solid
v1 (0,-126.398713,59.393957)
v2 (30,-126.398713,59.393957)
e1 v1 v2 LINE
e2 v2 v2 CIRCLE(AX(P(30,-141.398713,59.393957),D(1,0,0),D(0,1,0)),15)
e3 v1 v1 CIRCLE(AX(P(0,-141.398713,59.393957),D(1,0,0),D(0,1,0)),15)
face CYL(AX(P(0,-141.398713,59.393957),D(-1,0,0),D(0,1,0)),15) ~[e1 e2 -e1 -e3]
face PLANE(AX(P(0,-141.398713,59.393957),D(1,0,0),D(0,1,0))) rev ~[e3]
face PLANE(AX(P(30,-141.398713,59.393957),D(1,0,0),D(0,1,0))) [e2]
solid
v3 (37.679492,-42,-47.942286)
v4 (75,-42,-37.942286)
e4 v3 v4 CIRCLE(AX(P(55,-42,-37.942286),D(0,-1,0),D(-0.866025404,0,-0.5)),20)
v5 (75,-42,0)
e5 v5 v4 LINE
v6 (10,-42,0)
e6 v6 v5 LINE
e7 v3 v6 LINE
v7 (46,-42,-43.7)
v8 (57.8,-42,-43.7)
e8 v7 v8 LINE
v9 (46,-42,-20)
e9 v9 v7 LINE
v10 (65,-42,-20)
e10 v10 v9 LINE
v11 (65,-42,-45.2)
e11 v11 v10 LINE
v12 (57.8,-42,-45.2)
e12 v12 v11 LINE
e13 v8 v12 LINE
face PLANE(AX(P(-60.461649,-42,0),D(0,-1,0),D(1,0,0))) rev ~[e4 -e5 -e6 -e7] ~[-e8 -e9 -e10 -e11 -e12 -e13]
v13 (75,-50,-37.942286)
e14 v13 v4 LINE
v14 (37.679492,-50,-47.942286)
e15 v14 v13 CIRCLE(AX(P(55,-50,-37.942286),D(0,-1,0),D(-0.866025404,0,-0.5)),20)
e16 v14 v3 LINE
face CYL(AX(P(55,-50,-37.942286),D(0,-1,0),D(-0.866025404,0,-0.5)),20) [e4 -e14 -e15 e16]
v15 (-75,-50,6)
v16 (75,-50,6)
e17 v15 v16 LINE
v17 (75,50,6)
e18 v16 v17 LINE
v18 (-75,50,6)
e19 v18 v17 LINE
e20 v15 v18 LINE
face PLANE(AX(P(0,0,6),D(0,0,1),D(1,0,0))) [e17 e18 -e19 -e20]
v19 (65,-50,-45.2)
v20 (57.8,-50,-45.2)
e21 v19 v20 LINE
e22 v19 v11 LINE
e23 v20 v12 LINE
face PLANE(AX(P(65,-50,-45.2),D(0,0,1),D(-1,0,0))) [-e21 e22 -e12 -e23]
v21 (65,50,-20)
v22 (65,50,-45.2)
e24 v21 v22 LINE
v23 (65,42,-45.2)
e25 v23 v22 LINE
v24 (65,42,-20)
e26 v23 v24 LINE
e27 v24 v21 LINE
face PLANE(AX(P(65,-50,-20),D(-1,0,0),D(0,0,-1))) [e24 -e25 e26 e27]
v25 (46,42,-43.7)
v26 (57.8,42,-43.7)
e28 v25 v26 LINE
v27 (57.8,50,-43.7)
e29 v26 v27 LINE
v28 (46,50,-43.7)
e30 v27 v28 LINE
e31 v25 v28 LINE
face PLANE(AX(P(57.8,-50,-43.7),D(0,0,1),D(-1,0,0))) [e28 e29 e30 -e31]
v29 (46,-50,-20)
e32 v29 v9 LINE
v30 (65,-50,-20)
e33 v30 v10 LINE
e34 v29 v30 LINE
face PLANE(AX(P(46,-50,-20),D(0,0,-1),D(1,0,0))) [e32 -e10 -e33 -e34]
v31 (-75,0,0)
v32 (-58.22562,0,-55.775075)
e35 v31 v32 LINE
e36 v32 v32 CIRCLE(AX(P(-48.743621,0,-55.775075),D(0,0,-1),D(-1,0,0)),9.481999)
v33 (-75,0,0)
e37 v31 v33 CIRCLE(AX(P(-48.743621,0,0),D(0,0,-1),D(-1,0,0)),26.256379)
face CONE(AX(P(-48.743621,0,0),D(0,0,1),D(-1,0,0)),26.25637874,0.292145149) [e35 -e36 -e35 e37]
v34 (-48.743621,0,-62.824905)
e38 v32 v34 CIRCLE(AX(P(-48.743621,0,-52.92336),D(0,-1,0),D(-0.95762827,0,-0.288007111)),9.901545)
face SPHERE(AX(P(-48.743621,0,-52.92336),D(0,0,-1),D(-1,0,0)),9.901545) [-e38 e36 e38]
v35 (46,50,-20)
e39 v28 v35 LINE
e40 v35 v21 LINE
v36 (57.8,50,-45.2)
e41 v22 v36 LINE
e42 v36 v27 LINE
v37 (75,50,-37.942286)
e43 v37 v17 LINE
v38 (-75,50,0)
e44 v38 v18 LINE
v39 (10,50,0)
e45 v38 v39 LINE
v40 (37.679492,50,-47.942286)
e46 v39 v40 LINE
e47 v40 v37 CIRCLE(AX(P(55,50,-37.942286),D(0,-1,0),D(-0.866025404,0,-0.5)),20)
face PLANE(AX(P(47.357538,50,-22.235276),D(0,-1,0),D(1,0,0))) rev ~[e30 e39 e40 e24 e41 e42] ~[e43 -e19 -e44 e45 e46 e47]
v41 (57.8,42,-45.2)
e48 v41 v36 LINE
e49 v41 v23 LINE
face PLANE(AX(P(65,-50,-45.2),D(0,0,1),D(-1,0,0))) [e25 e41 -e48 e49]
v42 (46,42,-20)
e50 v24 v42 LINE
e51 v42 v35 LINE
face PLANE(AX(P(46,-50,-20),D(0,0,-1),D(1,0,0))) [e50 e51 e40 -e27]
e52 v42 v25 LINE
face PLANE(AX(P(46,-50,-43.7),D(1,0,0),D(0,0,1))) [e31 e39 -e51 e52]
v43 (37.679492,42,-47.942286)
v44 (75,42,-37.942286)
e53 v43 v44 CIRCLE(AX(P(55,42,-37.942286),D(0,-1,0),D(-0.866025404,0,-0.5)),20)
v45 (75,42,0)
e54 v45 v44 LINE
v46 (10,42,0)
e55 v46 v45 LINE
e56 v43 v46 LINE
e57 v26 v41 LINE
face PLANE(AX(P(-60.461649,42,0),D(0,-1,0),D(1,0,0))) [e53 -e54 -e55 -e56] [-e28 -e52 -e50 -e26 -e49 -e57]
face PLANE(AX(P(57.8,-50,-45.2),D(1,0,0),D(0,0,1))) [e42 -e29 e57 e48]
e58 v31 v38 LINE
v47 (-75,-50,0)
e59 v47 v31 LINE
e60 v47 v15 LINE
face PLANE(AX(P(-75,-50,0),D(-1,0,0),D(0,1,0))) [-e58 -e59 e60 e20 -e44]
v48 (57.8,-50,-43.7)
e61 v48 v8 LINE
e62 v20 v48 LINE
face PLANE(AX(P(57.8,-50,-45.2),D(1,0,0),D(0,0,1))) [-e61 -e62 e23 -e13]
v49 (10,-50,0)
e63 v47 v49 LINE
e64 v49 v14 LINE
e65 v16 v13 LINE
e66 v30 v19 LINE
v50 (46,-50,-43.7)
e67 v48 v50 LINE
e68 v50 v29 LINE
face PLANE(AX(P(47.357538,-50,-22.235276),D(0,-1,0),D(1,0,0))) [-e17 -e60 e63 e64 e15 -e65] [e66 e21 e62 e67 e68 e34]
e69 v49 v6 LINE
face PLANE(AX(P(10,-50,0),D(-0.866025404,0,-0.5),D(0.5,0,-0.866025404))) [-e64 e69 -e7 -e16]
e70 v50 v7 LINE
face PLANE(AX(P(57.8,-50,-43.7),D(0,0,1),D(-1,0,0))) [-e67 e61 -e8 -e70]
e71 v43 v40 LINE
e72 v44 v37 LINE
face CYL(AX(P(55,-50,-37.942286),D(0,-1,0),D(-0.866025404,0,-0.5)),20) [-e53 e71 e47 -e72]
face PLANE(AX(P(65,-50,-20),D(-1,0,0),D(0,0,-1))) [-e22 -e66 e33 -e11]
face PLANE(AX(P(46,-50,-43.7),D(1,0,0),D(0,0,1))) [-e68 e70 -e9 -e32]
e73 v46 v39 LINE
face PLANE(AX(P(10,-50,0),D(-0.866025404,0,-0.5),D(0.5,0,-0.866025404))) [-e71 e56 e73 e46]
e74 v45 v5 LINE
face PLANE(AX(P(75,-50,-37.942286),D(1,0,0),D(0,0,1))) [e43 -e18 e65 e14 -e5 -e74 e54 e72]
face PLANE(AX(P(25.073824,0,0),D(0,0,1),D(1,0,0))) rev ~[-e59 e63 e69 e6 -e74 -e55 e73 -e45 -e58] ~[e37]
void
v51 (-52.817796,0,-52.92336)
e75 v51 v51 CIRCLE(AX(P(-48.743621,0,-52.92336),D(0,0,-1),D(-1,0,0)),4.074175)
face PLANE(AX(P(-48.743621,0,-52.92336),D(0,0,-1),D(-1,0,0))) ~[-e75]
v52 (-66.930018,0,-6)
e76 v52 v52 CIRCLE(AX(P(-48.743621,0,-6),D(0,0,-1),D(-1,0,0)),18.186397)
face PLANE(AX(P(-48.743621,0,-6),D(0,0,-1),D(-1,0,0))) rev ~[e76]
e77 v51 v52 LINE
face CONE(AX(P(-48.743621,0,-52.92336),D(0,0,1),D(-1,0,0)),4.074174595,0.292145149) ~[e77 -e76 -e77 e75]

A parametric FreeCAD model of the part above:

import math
import FreeCAD as App
import Part
import Sketcher

V = App.Vector
Q = App.Units.Quantity

doc = App.newDocument("Part")
body = doc.addObject("PartDesign::Body", "Body")

sketch1 = body.newObject("Sketcher::SketchObject", "Sketch")
sketch1.AttachmentSupport = (doc.getObject("XY_Plane"), [""])
sketch1.MapMode = "FlatFace"
sketch1.addGeometry([
    Part.LineSegment(V(-75, 50, 0), V(-75, -50, 0)),
    Part.LineSegment(V(-75, -50, 0), V(75, -50, 0)),
    Part.LineSegment(V(75, -50, 0), V(75, 50, 0)),
    Part.LineSegment(V(75, 50, 0), V(-75, 50, 0)),
], False)
sketch1.addConstraint([
    Sketcher.Constraint("Coincident", 0, 2, 1, 1),
    Sketcher.Constraint("Coincident", 1, 2, 2, 1),
    Sketcher.Constraint("Coincident", 2, 2, 3, 1),
    Sketcher.Constraint("Coincident", 3, 2, 0, 1),
    Sketcher.Constraint("Vertical", 0),
    Sketcher.Constraint("Horizontal", 1),
    Sketcher.Constraint("Vertical", 2),
    Sketcher.Constraint("Horizontal", 3),
    Sketcher.Constraint("Symmetric", 0, 2, 2, 2, -1, 1),
    Sketcher.Constraint("DistanceX", 1, 1, 1, 2, Q("150 mm")),
    Sketcher.Constraint("DistanceY", 0, 2, 0, 1, Q("100 mm")),
])
pad1 = body.newObject("PartDesign::Pad", "Pad")
pad1.Profile = sketch1
pad1.Length = 6

sketch2 = body.newObject("Sketcher::SketchObject", "Sketch001")
sketch2.AttachmentSupport = (doc.getObject("XZ_Plane"), [""])
sketch2.MapMode = "FlatFace"
sketch2.AttachmentOffset = App.Placement(V(0, 0, 50), App.Rotation())
sketch2.addGeometry([
    Part.LineSegment(V(75, 0, 0), V(10, 0, 0)),
    Part.LineSegment(V(10, 0, 0), V(37.679492, -47.942286, 0)),
    Part.ArcOfCircle(Part.Circle(V(55, -37.942286, 0), V(0, 0, 1), 20), math.radians(-150), math.radians(0)),
    Part.LineSegment(V(75, -37.942286, 0), V(75, 0, 0)),
    Part.LineSegment(V(46, -43.7, 0), V(46, -20, 0)),
    Part.LineSegment(V(46, -20, 0), V(65, -20, 0)),
    Part.LineSegment(V(65, -20, 0), V(65, -45.2, 0)),
    Part.LineSegment(V(65, -45.2, 0), V(57.8, -45.2, 0)),
    Part.LineSegment(V(57.8, -45.2, 0), V(57.8, -43.7, 0)),
    Part.LineSegment(V(57.8, -43.7, 0), V(46, -43.7, 0)),
], False)
sketch2.addConstraint([
    Sketcher.Constraint("Coincident", 0, 2, 1, 1),
    Sketcher.Constraint("Tangent", 1, 2, 2, 1),
    Sketcher.Constraint("Tangent", 2, 2, 3, 1),
    Sketcher.Constraint("Coincident", 3, 2, 0, 1),
    Sketcher.Constraint("Coincident", 4, 2, 5, 1),
    Sketcher.Constraint("Coincident", 5, 2, 6, 1),
    Sketcher.Constraint("Coincident", 6, 2, 7, 1),
    Sketcher.Constraint("Coincident", 7, 2, 8, 1),
    Sketcher.Constraint("Coincident", 8, 2, 9, 1),
    Sketcher.Constraint("Coincident", 9, 2, 4, 1),
    Sketcher.Constraint("Horizontal", 0),
    Sketcher.Constraint("Vertical", 3),
    Sketcher.Constraint("Vertical", 4),
    Sketcher.Constraint("Horizontal", 5),
    Sketcher.Constraint("Vertical", 6),
    Sketcher.Constraint("Horizontal", 7),
    Sketcher.Constraint("Vertical", 8),
    Sketcher.Constraint("Horizontal", 9),
    Sketcher.Constraint("PointOnObject", 0, 2, -1),
    Sketcher.Constraint("Radius", 2, Q("20 mm")),
    Sketcher.Constraint("DistanceX", 0, 2, 0, 1, Q("65 mm")),
    Sketcher.Constraint("DistanceX", 5, 1, 5, 2, Q("19 mm")),
    Sketcher.Constraint("Angle", 1, Q("-60 deg")),
    Sketcher.Constraint("DistanceX", 7, 2, 7, 1, Q("7.2 mm")),
    Sketcher.Constraint("DistanceY", 4, 1, 4, 2, Q("23.7 mm")),
    Sketcher.Constraint("DistanceY", 6, 2, 6, 1, Q("25.2 mm")),
    Sketcher.Constraint("DistanceX", -1, 1, 2, 3, Q("55 mm")),
    Sketcher.Constraint("DistanceX", -1, 1, 4, 2, Q("46 mm")),
    Sketcher.Constraint("DistanceY", 4, 2, -1, 1, Q("20 mm")),
])
pad2 = body.newObject("PartDesign::Pad", "Pad001")
pad2.Profile = sketch2
pad2.Length = 100
pad2.Reversed = True

sketch3 = body.newObject("Sketcher::SketchObject", "Sketch002")
sketch3.AttachmentSupport = (doc.getObject("XY_Plane"), [""])
sketch3.MapMode = "FlatFace"
sketch3.addGeometry([
    Part.LineSegment(V(-60.461649, 42, 0), V(-60.461649, -42, 0)),
    Part.LineSegment(V(-60.461649, -42, 0), V(110.609297, -42, 0)),
    Part.LineSegment(V(110.609297, -42, 0), V(110.609297, 42, 0)),
    Part.LineSegment(V(110.609297, 42, 0), V(-60.461649, 42, 0)),
], False)
sketch3.addConstraint([
    Sketcher.Constraint("Coincident", 0, 2, 1, 1),
    Sketcher.Constraint("Coincident", 1, 2, 2, 1),
    Sketcher.Constraint("Coincident", 2, 2, 3, 1),
    Sketcher.Constraint("Coincident", 3, 2, 0, 1),
    Sketcher.Constraint("Vertical", 0),
    Sketcher.Constraint("Horizontal", 1),
    Sketcher.Constraint("Vertical", 2),
    Sketcher.Constraint("Horizontal", 3),
    Sketcher.Constraint("DistanceY", 0, 2, 0, 1, Q("84 mm")),
    Sketcher.Constraint("DistanceY", 0, 2, -1, 1, Q("42 mm")),
    Sketcher.Constraint("DistanceX", 1, 1, 1, 2, Q("171.070946 mm")),
    Sketcher.Constraint("DistanceX", 0, 2, -1, 1, Q("60.461649 mm")),
])
pocket1 = body.newObject("PartDesign::Pocket", "Pocket")
pocket1.Profile = sketch3
pocket1.Length = 200

sketch4 = body.newObject("Sketcher::SketchObject", "Sketch003")
sketch4.AttachmentSupport = (doc.getObject("XZ_Plane"), [""])
sketch4.MapMode = "FlatFace"
sketch4.addGeometry([
    Part.LineSegment(V(-48.743621, 0, 0), V(-75, 0, 0)),
    Part.LineSegment(V(-75, 0, 0), V(-58.22562, -55.775075, 0)),
    Part.ArcOfCircle(Part.Circle(V(-48.743621, -52.92336, 0), V(0, 0, 1), 9.901545), math.radians(-163.261318), math.radians(-90)),
    Part.LineSegment(V(-48.743621, -62.824905, 0), V(-48.743621, -52.92336, 0)),
    Part.LineSegment(V(-48.743621, -52.92336, 0), V(-52.817796, -52.92336, 0)),
    Part.LineSegment(V(-52.817796, -52.92336, 0), V(-66.930018, -6, 0)),
    Part.LineSegment(V(-66.930018, -6, 0), V(-48.743621, -6, 0)),
    Part.LineSegment(V(-48.743621, -6, 0), V(-48.743621, 0, 0)),
], False)
sketch4.addGeometry(Part.LineSegment(V(-48.743621, 0, 0), V(-48.743621, -62.824905, 0)), True)
sketch4.addConstraint([
    Sketcher.Constraint("Coincident", 0, 2, 1, 1),
    Sketcher.Constraint("Coincident", 1, 2, 2, 1),
    Sketcher.Constraint("Coincident", 2, 2, 3, 1),
    Sketcher.Constraint("Coincident", 3, 2, 4, 1),
    Sketcher.Constraint("Coincident", 4, 2, 5, 1),
    Sketcher.Constraint("Coincident", 5, 2, 6, 1),
    Sketcher.Constraint("Coincident", 6, 2, 7, 1),
    Sketcher.Constraint("Coincident", 7, 2, 0, 1),
    Sketcher.Constraint("Horizontal", 0),
    Sketcher.Constraint("Vertical", 3),
    Sketcher.Constraint("Horizontal", 4),
    Sketcher.Constraint("Horizontal", 6),
    Sketcher.Constraint("Vertical", 7),
    Sketcher.Constraint("Vertical", 8),
    Sketcher.Constraint("Coincident", 3, 2, 2, 3),
    Sketcher.Constraint("Coincident", 8, 1, 7, 2),
    Sketcher.Constraint("Coincident", 8, 2, 2, 2),
    Sketcher.Constraint("PointOnObject", 0, 2, -1),
    Sketcher.Constraint("DistanceY", 7, 1, 7, 2, Q("6 mm")),
    Sketcher.Constraint("DistanceX", 0, 2, -1, 1, Q("75 mm")),
    Sketcher.Constraint("Radius", 2, Q("9.901545 mm")),
    Sketcher.Constraint("DistanceX", 1, 2, 2, 3, Q("9.481999 mm")),
    Sketcher.Constraint("DistanceX", 0, 2, 0, 1, Q("26.256379 mm")),
    Sketcher.Constraint("Distance", 1, Q("58.242929 mm")),
    Sketcher.Constraint("DistanceX", 4, 2, 4, 1, Q("4.074175 mm")),
    Sketcher.Constraint("DistanceX", 6, 1, 6, 2, Q("18.186397 mm")),
])
revolution = body.newObject("PartDesign::Revolution", "Revolution")
revolution.Profile = sketch4
revolution.ReferenceAxis = (sketch4, ["Axis0"])
revolution.Angle = 360
body2 = doc.addObject("PartDesign::Body", "Body001")

sketch5 = body2.newObject("Sketcher::SketchObject", "Sketch004")
sketch5.AttachmentSupport = (doc.getObject("YZ_Plane001"), [""])
sketch5.MapMode = "FlatFace"
sketch5.addGeometry(Part.Circle(V(-141.398713, 59.393957, 0), V(0, 0, 1), 15), False)
sketch5.addConstraint([
    Sketcher.Constraint("Diameter", 0, Q("30 mm")),
    Sketcher.Constraint("DistanceX", 0, 3, -1, 1, Q("141.398713 mm")),
    Sketcher.Constraint("DistanceY", -1, 1, 0, 3, Q("59.393957 mm")),
])
pad3 = body2.newObject("PartDesign::Pad", "Pad002")
pad3.Profile = sketch5
pad3.Length = 30

doc.recompute()
